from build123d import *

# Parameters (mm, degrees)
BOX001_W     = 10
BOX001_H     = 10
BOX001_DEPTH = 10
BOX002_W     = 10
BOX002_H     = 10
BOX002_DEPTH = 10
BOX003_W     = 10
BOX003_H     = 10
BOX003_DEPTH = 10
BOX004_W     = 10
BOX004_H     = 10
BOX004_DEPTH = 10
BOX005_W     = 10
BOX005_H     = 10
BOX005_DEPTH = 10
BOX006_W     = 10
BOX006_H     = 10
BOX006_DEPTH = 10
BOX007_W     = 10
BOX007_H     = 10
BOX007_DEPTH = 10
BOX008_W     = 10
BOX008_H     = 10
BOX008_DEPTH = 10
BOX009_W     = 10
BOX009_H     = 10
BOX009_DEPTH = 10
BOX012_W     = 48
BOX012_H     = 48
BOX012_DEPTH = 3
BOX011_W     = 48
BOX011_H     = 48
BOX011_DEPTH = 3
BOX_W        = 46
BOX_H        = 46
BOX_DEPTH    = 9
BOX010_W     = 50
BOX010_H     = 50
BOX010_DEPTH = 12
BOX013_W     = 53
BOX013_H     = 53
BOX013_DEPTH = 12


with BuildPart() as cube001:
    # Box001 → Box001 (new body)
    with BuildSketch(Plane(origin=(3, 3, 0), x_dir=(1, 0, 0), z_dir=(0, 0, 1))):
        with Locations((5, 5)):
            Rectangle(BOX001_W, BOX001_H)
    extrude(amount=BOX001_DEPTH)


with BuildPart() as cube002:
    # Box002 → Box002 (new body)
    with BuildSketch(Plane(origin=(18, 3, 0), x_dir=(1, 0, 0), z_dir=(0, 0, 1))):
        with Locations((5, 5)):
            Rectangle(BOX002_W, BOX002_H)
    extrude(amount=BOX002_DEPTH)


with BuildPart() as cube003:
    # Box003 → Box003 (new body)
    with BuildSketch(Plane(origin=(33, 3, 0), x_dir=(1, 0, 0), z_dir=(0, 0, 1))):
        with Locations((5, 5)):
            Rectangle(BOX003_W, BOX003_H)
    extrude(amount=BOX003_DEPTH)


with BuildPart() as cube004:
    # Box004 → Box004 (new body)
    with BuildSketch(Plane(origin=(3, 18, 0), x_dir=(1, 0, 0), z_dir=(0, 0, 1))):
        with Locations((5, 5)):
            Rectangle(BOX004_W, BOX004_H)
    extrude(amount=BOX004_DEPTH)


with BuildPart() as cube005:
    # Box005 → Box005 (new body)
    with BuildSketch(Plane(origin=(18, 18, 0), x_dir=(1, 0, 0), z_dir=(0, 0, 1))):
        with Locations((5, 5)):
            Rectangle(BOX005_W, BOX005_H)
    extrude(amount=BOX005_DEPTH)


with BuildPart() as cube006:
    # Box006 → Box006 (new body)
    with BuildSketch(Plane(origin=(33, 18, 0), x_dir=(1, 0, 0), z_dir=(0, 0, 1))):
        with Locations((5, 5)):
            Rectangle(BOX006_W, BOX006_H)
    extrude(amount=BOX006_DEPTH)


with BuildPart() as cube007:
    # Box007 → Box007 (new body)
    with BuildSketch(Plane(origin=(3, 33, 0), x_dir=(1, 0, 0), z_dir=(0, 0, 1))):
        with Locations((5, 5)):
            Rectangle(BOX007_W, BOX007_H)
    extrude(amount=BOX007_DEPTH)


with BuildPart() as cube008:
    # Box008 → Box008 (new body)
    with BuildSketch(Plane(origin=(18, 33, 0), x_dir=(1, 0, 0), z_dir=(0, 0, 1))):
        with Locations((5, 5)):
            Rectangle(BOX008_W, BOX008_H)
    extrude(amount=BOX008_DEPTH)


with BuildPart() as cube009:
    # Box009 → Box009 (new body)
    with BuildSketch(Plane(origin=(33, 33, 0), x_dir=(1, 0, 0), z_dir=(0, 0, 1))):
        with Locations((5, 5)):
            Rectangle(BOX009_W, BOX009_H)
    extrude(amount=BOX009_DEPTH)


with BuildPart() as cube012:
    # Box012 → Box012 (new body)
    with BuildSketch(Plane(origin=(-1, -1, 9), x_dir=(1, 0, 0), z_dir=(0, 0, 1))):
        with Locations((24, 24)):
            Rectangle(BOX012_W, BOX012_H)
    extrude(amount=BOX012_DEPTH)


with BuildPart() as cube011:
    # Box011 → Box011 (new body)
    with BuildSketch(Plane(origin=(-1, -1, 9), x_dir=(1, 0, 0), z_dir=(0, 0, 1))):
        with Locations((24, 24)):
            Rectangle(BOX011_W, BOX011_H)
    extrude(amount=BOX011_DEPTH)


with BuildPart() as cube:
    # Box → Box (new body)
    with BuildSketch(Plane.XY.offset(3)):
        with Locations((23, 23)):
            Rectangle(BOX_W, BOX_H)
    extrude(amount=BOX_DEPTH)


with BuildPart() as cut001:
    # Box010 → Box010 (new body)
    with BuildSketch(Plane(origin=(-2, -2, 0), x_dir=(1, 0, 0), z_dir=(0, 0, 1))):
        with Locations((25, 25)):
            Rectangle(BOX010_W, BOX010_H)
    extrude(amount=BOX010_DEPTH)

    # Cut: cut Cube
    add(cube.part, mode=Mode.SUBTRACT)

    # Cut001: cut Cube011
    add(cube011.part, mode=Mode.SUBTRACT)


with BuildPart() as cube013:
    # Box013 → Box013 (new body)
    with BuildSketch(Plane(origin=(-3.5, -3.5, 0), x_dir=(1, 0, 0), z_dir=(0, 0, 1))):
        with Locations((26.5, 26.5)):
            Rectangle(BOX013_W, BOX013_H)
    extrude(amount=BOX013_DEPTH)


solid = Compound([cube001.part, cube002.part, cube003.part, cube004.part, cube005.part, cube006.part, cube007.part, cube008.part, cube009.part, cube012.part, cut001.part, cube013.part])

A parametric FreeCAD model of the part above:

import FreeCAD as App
import Part
import Sketcher

V = App.Vector


def add_polygon(sketch, points):
    """Adds a closed chain of lines whose ends are joined by coincident constraints."""
    first, n = sketch.GeometryCount, len(points)
    for a, b in zip(points, points[1:] + points[:1]):
        sketch.addGeometry(Part.LineSegment(App.Vector(*a, 0), App.Vector(*b, 0)), False)
    for i in range(n):
        sketch.addConstraint(Sketcher.Constraint("Coincident", first + i, 2, first + (i + 1) % n, 1))

doc = App.newDocument("Part")
body = doc.addObject("PartDesign::Body", "Body")

# Sketch on XY plane
sketch1 = doc.addObject("Sketcher::SketchObject", "Sketch")
body.addObject(sketch1)
sketch1.AttachmentSupport = (doc.XY_Plane, [""])
sketch1.MapMode = "FlatFace"
add_polygon(sketch1, [(3, 13), (3, 3), (13, 3), (13, 13)])  # lines 0-3
sketch1.addConstraint(Sketcher.Constraint("Vertical", 0))
sketch1.addConstraint(Sketcher.Constraint("Horizontal", 1))
sketch1.addConstraint(Sketcher.Constraint("Vertical", 2))
sketch1.addConstraint(Sketcher.Constraint("Horizontal", 3))
sketch1.addConstraint(Sketcher.Constraint("Equal", 3, 0))
sketch1.addConstraint(Sketcher.Constraint("DistanceX", 1, 1, 1, 2, 10.0))
sketch1.addConstraint(Sketcher.Constraint("DistanceX", -1, 1, 0, 2, 3.0))
sketch1.addConstraint(Sketcher.Constraint("DistanceY", -1, 1, 0, 2, 3.0))
pad1 = doc.addObject("PartDesign::Pad", "Pad")
body.addObject(pad1)
pad1.Profile = sketch1
pad1.Length = 10
body2 = doc.addObject("PartDesign::Body", "Body001")

# Sketch on XY plane
sketch2 = doc.addObject("Sketcher::SketchObject", "Sketch001")
body2.addObject(sketch2)
sketch2.AttachmentSupport = (doc.getObject("XY_Plane001"), [""])
sketch2.MapMode = "FlatFace"
add_polygon(sketch2, [(18, 13), (18, 3), (28, 3), (28, 13)])  # lines 0-3
sketch2.addConstraint(Sketcher.Constraint("Vertical", 0))
sketch2.addConstraint(Sketcher.Constraint("Horizontal", 1))
sketch2.addConstraint(Sketcher.Constraint("Vertical", 2))
sketch2.addConstraint(Sketcher.Constraint("Horizontal", 3))
sketch2.addConstraint(Sketcher.Constraint("Equal", 3, 0))
sketch2.addConstraint(Sketcher.Constraint("DistanceX", 1, 1, 1, 2, 10.0))
sketch2.addConstraint(Sketcher.Constraint("DistanceX", -1, 1, 0, 2, 18.0))
sketch2.addConstraint(Sketcher.Constraint("DistanceY", -1, 1, 0, 2, 3.0))
pad2 = doc.addObject("PartDesign::Pad", "Pad001")
body2.addObject(pad2)
pad2.Profile = sketch2
pad2.Length = 10
body3 = doc.addObject("PartDesign::Body", "Body002")

# Sketch on XY plane
sketch3 = doc.addObject("Sketcher::SketchObject", "Sketch002")
body3.addObject(sketch3)
sketch3.AttachmentSupport = (doc.getObject("XY_Plane002"), [""])
sketch3.MapMode = "FlatFace"
add_polygon(sketch3, [(33, 13), (33, 3), (43, 3), (43, 13)])  # lines 0-3
sketch3.addConstraint(Sketcher.Constraint("Vertical", 0))
sketch3.addConstraint(Sketcher.Constraint("Horizontal", 1))
sketch3.addConstraint(Sketcher.Constraint("Vertical", 2))
sketch3.addConstraint(Sketcher.Constraint("Horizontal", 3))
sketch3.addConstraint(Sketcher.Constraint("Equal", 3, 0))
sketch3.addConstraint(Sketcher.Constraint("DistanceX", 1, 1, 1, 2, 10.0))
sketch3.addConstraint(Sketcher.Constraint("DistanceX", -1, 1, 0, 2, 33.0))
sketch3.addConstraint(Sketcher.Constraint("DistanceY", -1, 1, 0, 2, 3.0))
pad3 = doc.addObject("PartDesign::Pad", "Pad002")
body3.addObject(pad3)
pad3.Profile = sketch3
pad3.Length = 10
body4 = doc.addObject("PartDesign::Body", "Body003")

# Sketch on XY plane
sketch4 = doc.addObject("Sketcher::SketchObject", "Sketch003")
body4.addObject(sketch4)
sketch4.AttachmentSupport = (doc.getObject("XY_Plane003"), [""])
sketch4.MapMode = "FlatFace"
add_polygon(sketch4, [(3, 28), (3, 18), (13, 18), (13, 28)])  # lines 0-3
sketch4.addConstraint(Sketcher.Constraint("Vertical", 0))
sketch4.addConstraint(Sketcher.Constraint("Horizontal", 1))
sketch4.addConstraint(Sketcher.Constraint("Vertical", 2))
sketch4.addConstraint(Sketcher.Constraint("Horizontal", 3))
sketch4.addConstraint(Sketcher.Constraint("Equal", 3, 0))
sketch4.addConstraint(Sketcher.Constraint("DistanceX", 1, 1, 1, 2, 10.0))
sketch4.addConstraint(Sketcher.Constraint("DistanceX", -1, 1, 0, 2, 3.0))
sketch4.addConstraint(Sketcher.Constraint("DistanceY", -1, 1, 0, 2, 18.0))
pad4 = doc.addObject("PartDesign::Pad", "Pad003")
body4.addObject(pad4)
pad4.Profile = sketch4
pad4.Length = 10
body5 = doc.addObject("PartDesign::Body", "Body004")

# Sketch on XY plane
sketch5 = doc.addObject("Sketcher::SketchObject", "Sketch004")
body5.addObject(sketch5)
sketch5.AttachmentSupport = (doc.getObject("XY_Plane004"), [""])
sketch5.MapMode = "FlatFace"
add_polygon(sketch5, [(18, 28), (18, 18), (28, 18), (28, 28)])  # lines 0-3
sketch5.addConstraint(Sketcher.Constraint("Vertical", 0))
sketch5.addConstraint(Sketcher.Constraint("Horizontal", 1))
sketch5.addConstraint(Sketcher.Constraint("Vertical", 2))
sketch5.addConstraint(Sketcher.Constraint("Horizontal", 3))
sketch5.addConstraint(Sketcher.Constraint("Equal", 3, 0))
sketch5.addConstraint(Sketcher.Constraint("DistanceX", 1, 1, 1, 2, 10.0))
sketch5.addConstraint(Sketcher.Constraint("DistanceX", -1, 1, 0, 2, 18.0))
sketch5.addConstraint(Sketcher.Constraint("DistanceY", -1, 1, 0, 2, 18.0))
pad5 = doc.addObject("PartDesign::Pad", "Pad004")
body5.addObject(pad5)
pad5.Profile = sketch5
pad5.Length = 10
body6 = doc.addObject("PartDesign::Body", "Body005")

# Sketch on XY plane
sketch6 = doc.addObject("Sketcher::SketchObject", "Sketch005")
body6.addObject(sketch6)
sketch6.AttachmentSupport = (doc.getObject("XY_Plane005"), [""])
sketch6.MapMode = "FlatFace"
add_polygon(sketch6, [(33, 28), (33, 18), (43, 18), (43, 28)])  # lines 0-3
sketch6.addConstraint(Sketcher.Constraint("Vertical", 0))
sketch6.addConstraint(Sketcher.Constraint("Horizontal", 1))
sketch6.addConstraint(Sketcher.Constraint("Vertical", 2))
sketch6.addConstraint(Sketcher.Constraint("Horizontal", 3))
sketch6.addConstraint(Sketcher.Constraint("Equal", 3, 0))
sketch6.addConstraint(Sketcher.Constraint("DistanceX", 1, 1, 1, 2, 10.0))
sketch6.addConstraint(Sketcher.Constraint("DistanceX", -1, 1, 0, 2, 33.0))
sketch6.addConstraint(Sketcher.Constraint("DistanceY", -1, 1, 0, 2, 18.0))
pad6 = doc.addObject("PartDesign::Pad", "Pad005")
body6.addObject(pad6)
pad6.Profile = sketch6
pad6.Length = 10
body7 = doc.addObject("PartDesign::Body", "Body006")

# Sketch on XY plane
sketch7 = doc.addObject("Sketcher::SketchObject", "Sketch006")
body7.addObject(sketch7)
sketch7.AttachmentSupport = (doc.getObject("XY_Plane006"), [""])
sketch7.MapMode = "FlatFace"
add_polygon(sketch7, [(3, 43), (3, 33), (13, 33), (13, 43)])  # lines 0-3
sketch7.addConstraint(Sketcher.Constraint("Vertical", 0))
sketch7.addConstraint(Sketcher.Constraint("Horizontal", 1))
sketch7.addConstraint(Sketcher.Constraint("Vertical", 2))
sketch7.addConstraint(Sketcher.Constraint("Horizontal", 3))
sketch7.addConstraint(Sketcher.Constraint("Equal", 3, 0))
sketch7.addConstraint(Sketcher.Constraint("DistanceX", 1, 1, 1, 2, 10.0))
sketch7.addConstraint(Sketcher.Constraint("DistanceX", -1, 1, 0, 2, 3.0))
sketch7.addConstraint(Sketcher.Constraint("DistanceY", -1, 1, 0, 2, 33.0))
pad7 = doc.addObject("PartDesign::Pad", "Pad006")
body7.addObject(pad7)
pad7.Profile = sketch7
pad7.Length = 10
body8 = doc.addObject("PartDesign::Body", "Body007")

# Sketch on XY plane
sketch8 = doc.addObject("Sketcher::SketchObject", "Sketch007")
body8.addObject(sketch8)
sketch8.AttachmentSupport = (doc.getObject("XY_Plane007"), [""])
sketch8.MapMode = "FlatFace"
add_polygon(sketch8, [(18, 43), (18, 33), (28, 33), (28, 43)])  # lines 0-3
sketch8.addConstraint(Sketcher.Constraint("Vertical", 0))
sketch8.addConstraint(Sketcher.Constraint("Horizontal", 1))
sketch8.addConstraint(Sketcher.Constraint("Vertical", 2))
sketch8.addConstraint(Sketcher.Constraint("Horizontal", 3))
sketch8.addConstraint(Sketcher.Constraint("Equal", 3, 0))
sketch8.addConstraint(Sketcher.Constraint("DistanceX", 1, 1, 1, 2, 10.0))
sketch8.addConstraint(Sketcher.Constraint("DistanceX", -1, 1, 0, 2, 18.0))
sketch8.addConstraint(Sketcher.Constraint("DistanceY", -1, 1, 0, 2, 33.0))
pad8 = doc.addObject("PartDesign::Pad", "Pad007")
body8.addObject(pad8)
pad8.Profile = sketch8
pad8.Length = 10
body9 = doc.addObject("PartDesign::Body", "Body008")

# Sketch on XY plane
sketch9 = doc.addObject("Sketcher::SketchObject", "Sketch008")
body9.addObject(sketch9)
sketch9.AttachmentSupport = (doc.getObject("XY_Plane008"), [""])
sketch9.MapMode = "FlatFace"
add_polygon(sketch9, [(33, 43), (33, 33), (43, 33), (43, 43)])  # lines 0-3
sketch9.addConstraint(Sketcher.Constraint("Vertical", 0))
sketch9.addConstraint(Sketcher.Constraint("Horizontal", 1))
sketch9.addConstraint(Sketcher.Constraint("Vertical", 2))
sketch9.addConstraint(Sketcher.Constraint("Horizontal", 3))
sketch9.addConstraint(Sketcher.Constraint("Equal", 3, 0))
sketch9.addConstraint(Sketcher.Constraint("DistanceX", 1, 1, 1, 2, 10.0))
sketch9.addConstraint(Sketcher.Constraint("DistanceX", -1, 1, 0, 2, 33.0))
sketch9.addConstraint(Sketcher.Constraint("DistanceY", -1, 1, 0, 2, 33.0))
pad9 = doc.addObject("PartDesign::Pad", "Pad008")
body9.addObject(pad9)
pad9.Profile = sketch9
pad9.Length = 10
body10 = doc.addObject("PartDesign::Body", "Body009")

# Sketch on XY plane
sketch10 = doc.addObject("Sketcher::SketchObject", "Sketch009")
body10.addObject(sketch10)
sketch10.AttachmentSupport = (doc.getObject("XY_Plane009"), [""])
sketch10.MapMode = "FlatFace"
sketch10.AttachmentOffset = App.Placement(V(0, 0, 9), App.Rotation())
add_polygon(sketch10, [(-1, 47), (-1, -1), (47, -1), (47, 47)])  # lines 0-3
sketch10.addConstraint(Sketcher.Constraint("Vertical", 0))
sketch10.addConstraint(Sketcher.Constraint("Horizontal", 1))
sketch10.addConstraint(Sketcher.Constraint("Vertical", 2))
sketch10.addConstraint(Sketcher.Constraint("Horizontal", 3))
sketch10.addConstraint(Sketcher.Constraint("Equal", 3, 0))
sketch10.addConstraint(Sketcher.Constraint("DistanceX", 1, 1, 1, 2, 48.0))
sketch10.addConstraint(Sketcher.Constraint("DistanceX", 0, 2, -1, 1, 1.0))
sketch10.addConstraint(Sketcher.Constraint("DistanceY", 0, 2, -1, 1, 1.0))
pad10 = doc.addObject("PartDesign::Pad", "Pad009")
body10.addObject(pad10)
pad10.Profile = sketch10
pad10.Length = 3
body11 = doc.addObject("PartDesign::Body", "Body010")

# Sketch on XY plane
sketch11 = doc.addObject("Sketcher::SketchObject", "Sketch010")
body11.addObject(sketch11)
sketch11.AttachmentSupport = (doc.getObject("XY_Plane010"), [""])
sketch11.MapMode = "FlatFace"
sketch11.AttachmentOffset = App.Placement(V(0, 0, 9), App.Rotation())
add_polygon(sketch11, [(-1, 47), (-1, -1), (47, -1), (47, 47)])  # lines 0-3
sketch11.addConstraint(Sketcher.Constraint("Vertical", 0))
sketch11.addConstraint(Sketcher.Constraint("Horizontal", 1))
sketch11.addConstraint(Sketcher.Constraint("Vertical", 2))
sketch11.addConstraint(Sketcher.Constraint("Horizontal", 3))
sketch11.addConstraint(Sketcher.Constraint("Equal", 3, 0))
sketch11.addConstraint(Sketcher.Constraint("DistanceX", 1, 1, 1, 2, 48.0))
sketch11.addConstraint(Sketcher.Constraint("DistanceX", 0, 2, -1, 1, 1.0))
sketch11.addConstraint(Sketcher.Constraint("DistanceY", 0, 2, -1, 1, 1.0))
pad11 = doc.addObject("PartDesign::Pad", "Pad010")
body11.addObject(pad11)
pad11.Profile = sketch11
pad11.Length = 3
body12 = doc.addObject("PartDesign::Body", "Body011")

# Sketch on XY plane
sketch12 = doc.addObject("Sketcher::SketchObject", "Sketch011")
body12.addObject(sketch12)
sketch12.AttachmentSupport = (doc.getObject("XY_Plane011"), [""])
sketch12.MapMode = "FlatFace"
sketch12.AttachmentOffset = App.Placement(V(0, 0, 3), App.Rotation())
add_polygon(sketch12, [(0, 46), (0, 0), (46, 0), (46, 46)])  # lines 0-3
sketch12.addConstraint(Sketcher.Constraint("Vertical", 0))
sketch12.addConstraint(Sketcher.Constraint("Horizontal", 1))
sketch12.addConstraint(Sketcher.Constraint("Vertical", 2))
sketch12.addConstraint(Sketcher.Constraint("Horizontal", 3))
sketch12.addConstraint(Sketcher.Constraint("Coincident", 0, 2, -1, 1))
sketch12.addConstraint(Sketcher.Constraint("Equal", 3, 0))
sketch12.addConstraint(Sketcher.Constraint("DistanceX", 1, 1, 1, 2, 46.0))
pad12 = doc.addObject("PartDesign::Pad", "Pad011")
body12.addObject(pad12)
pad12.Profile = sketch12
pad12.Length = 9
body13 = doc.addObject("PartDesign::Body", "Body012")

# Sketch on XY plane
sketch13 = doc.addObject("Sketcher::SketchObject", "Sketch012")
body13.addObject(sketch13)
sketch13.AttachmentSupport = (doc.getObject("XY_Plane012"), [""])
sketch13.MapMode = "FlatFace"
add_polygon(sketch13, [(-2, 48), (-2, -2), (48, -2), (48, 48)])  # lines 0-3
sketch13.addConstraint(Sketcher.Constraint("Vertical", 0))
sketch13.addConstraint(Sketcher.Constraint("Horizontal", 1))
sketch13.addConstraint(Sketcher.Constraint("Vertical", 2))
sketch13.addConstraint(Sketcher.Constraint("Horizontal", 3))
sketch13.addConstraint(Sketcher.Constraint("Equal", 3, 0))
sketch13.addConstraint(Sketcher.Constraint("DistanceX", 1, 1, 1, 2, 50.0))
sketch13.addConstraint(Sketcher.Constraint("DistanceX", 0, 2, -1, 1, 2.0))
sketch13.addConstraint(Sketcher.Constraint("DistanceY", 0, 2, -1, 1, 2.0))
pad13 = doc.addObject("PartDesign::Pad", "Pad012")
body13.addObject(pad13)
pad13.Profile = sketch13
pad13.Length = 12
doc.recompute()

boolean = doc.addObject("PartDesign::Boolean", "Boolean")
body13.addObject(boolean)
boolean.Type = "Cut"
boolean.addObjects([body12])
doc.recompute()

boolean2 = doc.addObject("PartDesign::Boolean", "Boolean001")
body13.addObject(boolean2)
boolean2.Type = "Cut"
boolean2.addObjects([body11])
body14 = doc.addObject("PartDesign::Body", "Body013")

# Sketch on XY plane
sketch14 = doc.addObject("Sketcher::SketchObject", "Sketch013")
body14.addObject(sketch14)
sketch14.AttachmentSupport = (doc.getObject("XY_Plane013"), [""])
sketch14.MapMode = "FlatFace"
add_polygon(sketch14, [(-4, 50), (-4, -4), (50, -4), (50, 50)])  # lines 0-3
sketch14.addConstraint(Sketcher.Constraint("Vertical", 0))
sketch14.addConstraint(Sketcher.Constraint("Horizontal", 1))
sketch14.addConstraint(Sketcher.Constraint("Vertical", 2))
sketch14.addConstraint(Sketcher.Constraint("Horizontal", 3))
sketch14.addConstraint(Sketcher.Constraint("Equal", 3, 0))
sketch14.addConstraint(Sketcher.Constraint("DistanceX", 1, 1, 1, 2, 53.0))
sketch14.addConstraint(Sketcher.Constraint("DistanceX", 0, 2, -1, 1, 3.5))
sketch14.addConstraint(Sketcher.Constraint("DistanceY", 0, 2, -1, 1, 3.5))
pad14 = doc.addObject("PartDesign::Pad", "Pad013")
body14.addObject(pad14)
pad14.Profile = sketch14
pad14.Length = 12

doc.recompute()
